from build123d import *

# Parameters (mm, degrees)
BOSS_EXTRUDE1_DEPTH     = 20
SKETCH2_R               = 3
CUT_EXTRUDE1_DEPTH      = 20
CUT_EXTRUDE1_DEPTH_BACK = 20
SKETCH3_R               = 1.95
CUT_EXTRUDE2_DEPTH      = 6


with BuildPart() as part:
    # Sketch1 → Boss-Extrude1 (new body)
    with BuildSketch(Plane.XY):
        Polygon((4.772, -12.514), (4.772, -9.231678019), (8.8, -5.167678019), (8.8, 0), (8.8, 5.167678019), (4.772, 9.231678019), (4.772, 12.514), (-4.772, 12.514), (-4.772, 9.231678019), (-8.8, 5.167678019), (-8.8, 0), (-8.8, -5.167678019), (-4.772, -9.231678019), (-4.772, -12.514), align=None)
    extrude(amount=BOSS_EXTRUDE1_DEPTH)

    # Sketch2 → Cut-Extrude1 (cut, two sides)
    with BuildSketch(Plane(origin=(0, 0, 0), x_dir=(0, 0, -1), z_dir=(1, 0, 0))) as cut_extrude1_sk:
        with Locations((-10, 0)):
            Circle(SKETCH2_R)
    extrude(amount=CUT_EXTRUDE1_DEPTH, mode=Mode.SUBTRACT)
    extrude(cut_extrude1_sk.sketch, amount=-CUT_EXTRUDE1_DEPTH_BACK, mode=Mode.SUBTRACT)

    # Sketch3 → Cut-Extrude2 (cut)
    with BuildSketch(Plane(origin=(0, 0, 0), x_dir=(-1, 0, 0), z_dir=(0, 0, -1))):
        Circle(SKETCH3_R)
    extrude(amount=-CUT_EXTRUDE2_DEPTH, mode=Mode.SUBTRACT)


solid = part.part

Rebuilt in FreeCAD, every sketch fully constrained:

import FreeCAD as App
import Part
import Sketcher
Q = App.Units.Quantity


def add_polygon(sketch, points):
    """Adds a closed chain of lines whose ends are joined by coincident constraints."""
    first, n = sketch.GeometryCount, len(points)
    for a, b in zip(points, points[1:] + points[:1]):
        sketch.addGeometry(Part.LineSegment(App.Vector(*a, 0), App.Vector(*b, 0)), False)
    for i in range(n):
        sketch.addConstraint(Sketcher.Constraint("Coincident", first + i, 2, first + (i + 1) % n, 1))

doc = App.newDocument("Part")
params = doc.addObject("Spreadsheet::Sheet", "Params")
for row, (alias, value) in enumerate([
    ("pad1_length", "20 mm"),
    ("sketch2_diameter", "6 mm"),
    ("sketch3_diameter", "3.9 mm"),
    ("pocket2_length", "6 mm"),
], start=1):
    params.set(f"A{row}", alias)
    params.set(f"B{row}", "=" + value)
    params.setAlias(f"B{row}", alias)

body = doc.addObject("PartDesign::Body", "Body")

# Sketch on XY plane
sketch1 = doc.addObject("Sketcher::SketchObject", "Sketch")
body.addObject(sketch1)
sketch1.AttachmentSupport = (doc.XY_Plane, [""])
sketch1.MapMode = "FlatFace"
add_polygon(sketch1, [(4.8, -12.5), (4.8, -9.2), (8.8, -5.2), (8.8, 5.2), (4.8, 9.2), (4.8, 12.5), (-4.8, 12.5), (-4.8, 9.2), (-8.8, 5.2), (-8.8, -5.2), (-4.8, -9.2), (-4.8, -12.5)])  # lines 0-11
sketch1.addConstraint([
    Sketcher.Constraint("Vertical", 0),
    Sketcher.Constraint("Vertical", 2),
    Sketcher.Constraint("Vertical", 4),
    Sketcher.Constraint("Horizontal", 5),
    Sketcher.Constraint("Vertical", 6),
    Sketcher.Constraint("Vertical", 8),
    Sketcher.Constraint("Vertical", 10),
    Sketcher.Constraint("Horizontal", 11),
    Sketcher.Constraint("Symmetric", 0, 2, 6, 2, -1, 1),
    Sketcher.Constraint("Symmetric", 1, 2, 7, 2, -1, 1),
    Sketcher.Constraint("Symmetric", 3, 2, 9, 2, -1, 1),
    Sketcher.Constraint("Symmetric", 3, 2, 6, 2, -2),
    Sketcher.Constraint("Parallel", 3, 9),
    Sketcher.Constraint("Horizontal", 2, 2, 7, 2),
    Sketcher.Constraint("Equal", 0, 4),
    Sketcher.Constraint("DistanceX", -1, 1, 1, 2, Q("8.8 mm")),
    Sketcher.Constraint("DistanceX", 5, 2, 5, 1, Q("9.544 mm")),
    Sketcher.Constraint("DistanceY", -1, 1, 4, 2, Q("12.514 mm")),
    Sketcher.Constraint("DistanceY", 0, 2, 1, 2, Q("4.064 mm")),
    Sketcher.Constraint("DistanceY", 0, 1, 0, 2, Q("3.282322 mm")),
])
pad1 = doc.addObject("PartDesign::Pad", "Pad")
body.addObject(pad1)
pad1.Profile = sketch1
pad1.setExpression("Length", "Params.pad1_length")

# Sketch on YZ plane
sketch2 = doc.addObject("Sketcher::SketchObject", "Sketch001")
body.addObject(sketch2)
sketch2.AttachmentSupport = (doc.YZ_Plane, [""])
sketch2.MapMode = "FlatFace"
sketch2.addGeometry(Part.Circle(App.Vector(0, 10, 0), App.Vector(0, 0, 1), 3), False)
sketch2.addConstraint([
    Sketcher.Constraint("PointOnObject", 0, 3, -2),
    Sketcher.Constraint("Diameter", 0, Q("6 mm")),
    Sketcher.Constraint("DistanceY", -1, 1, 0, 3, Q("10 mm")),
])
sketch2.setExpression("Constraints[1]", "Params.sketch2_diameter")
pocket1 = doc.addObject("PartDesign::Pocket", "Pocket")
body.addObject(pocket1)
pocket1.Profile = sketch2
pocket1.Type = "ThroughAll"
pocket1.Midplane = True

# Sketch on XY plane
sketch3 = doc.addObject("Sketcher::SketchObject", "Sketch002")
body.addObject(sketch3)
sketch3.AttachmentSupport = (doc.XY_Plane, [""])
sketch3.MapMode = "FlatFace"
sketch3.addGeometry(Part.Circle(App.Vector(0, 0, 0), App.Vector(0, 0, 1), 1.9), False)
sketch3.addConstraint([
    Sketcher.Constraint("Coincident", 0, 3, -1, 1),
    Sketcher.Constraint("Diameter", 0, Q("3.9 mm")),
])
sketch3.setExpression("Constraints[1]", "Params.sketch3_diameter")
pocket2 = doc.addObject("PartDesign::Pocket", "Pocket001")
body.addObject(pocket2)
pocket2.Profile = sketch3
pocket2.setExpression("Length", "Params.pocket2_length")
pocket2.Reversed = True

doc.recompute()
